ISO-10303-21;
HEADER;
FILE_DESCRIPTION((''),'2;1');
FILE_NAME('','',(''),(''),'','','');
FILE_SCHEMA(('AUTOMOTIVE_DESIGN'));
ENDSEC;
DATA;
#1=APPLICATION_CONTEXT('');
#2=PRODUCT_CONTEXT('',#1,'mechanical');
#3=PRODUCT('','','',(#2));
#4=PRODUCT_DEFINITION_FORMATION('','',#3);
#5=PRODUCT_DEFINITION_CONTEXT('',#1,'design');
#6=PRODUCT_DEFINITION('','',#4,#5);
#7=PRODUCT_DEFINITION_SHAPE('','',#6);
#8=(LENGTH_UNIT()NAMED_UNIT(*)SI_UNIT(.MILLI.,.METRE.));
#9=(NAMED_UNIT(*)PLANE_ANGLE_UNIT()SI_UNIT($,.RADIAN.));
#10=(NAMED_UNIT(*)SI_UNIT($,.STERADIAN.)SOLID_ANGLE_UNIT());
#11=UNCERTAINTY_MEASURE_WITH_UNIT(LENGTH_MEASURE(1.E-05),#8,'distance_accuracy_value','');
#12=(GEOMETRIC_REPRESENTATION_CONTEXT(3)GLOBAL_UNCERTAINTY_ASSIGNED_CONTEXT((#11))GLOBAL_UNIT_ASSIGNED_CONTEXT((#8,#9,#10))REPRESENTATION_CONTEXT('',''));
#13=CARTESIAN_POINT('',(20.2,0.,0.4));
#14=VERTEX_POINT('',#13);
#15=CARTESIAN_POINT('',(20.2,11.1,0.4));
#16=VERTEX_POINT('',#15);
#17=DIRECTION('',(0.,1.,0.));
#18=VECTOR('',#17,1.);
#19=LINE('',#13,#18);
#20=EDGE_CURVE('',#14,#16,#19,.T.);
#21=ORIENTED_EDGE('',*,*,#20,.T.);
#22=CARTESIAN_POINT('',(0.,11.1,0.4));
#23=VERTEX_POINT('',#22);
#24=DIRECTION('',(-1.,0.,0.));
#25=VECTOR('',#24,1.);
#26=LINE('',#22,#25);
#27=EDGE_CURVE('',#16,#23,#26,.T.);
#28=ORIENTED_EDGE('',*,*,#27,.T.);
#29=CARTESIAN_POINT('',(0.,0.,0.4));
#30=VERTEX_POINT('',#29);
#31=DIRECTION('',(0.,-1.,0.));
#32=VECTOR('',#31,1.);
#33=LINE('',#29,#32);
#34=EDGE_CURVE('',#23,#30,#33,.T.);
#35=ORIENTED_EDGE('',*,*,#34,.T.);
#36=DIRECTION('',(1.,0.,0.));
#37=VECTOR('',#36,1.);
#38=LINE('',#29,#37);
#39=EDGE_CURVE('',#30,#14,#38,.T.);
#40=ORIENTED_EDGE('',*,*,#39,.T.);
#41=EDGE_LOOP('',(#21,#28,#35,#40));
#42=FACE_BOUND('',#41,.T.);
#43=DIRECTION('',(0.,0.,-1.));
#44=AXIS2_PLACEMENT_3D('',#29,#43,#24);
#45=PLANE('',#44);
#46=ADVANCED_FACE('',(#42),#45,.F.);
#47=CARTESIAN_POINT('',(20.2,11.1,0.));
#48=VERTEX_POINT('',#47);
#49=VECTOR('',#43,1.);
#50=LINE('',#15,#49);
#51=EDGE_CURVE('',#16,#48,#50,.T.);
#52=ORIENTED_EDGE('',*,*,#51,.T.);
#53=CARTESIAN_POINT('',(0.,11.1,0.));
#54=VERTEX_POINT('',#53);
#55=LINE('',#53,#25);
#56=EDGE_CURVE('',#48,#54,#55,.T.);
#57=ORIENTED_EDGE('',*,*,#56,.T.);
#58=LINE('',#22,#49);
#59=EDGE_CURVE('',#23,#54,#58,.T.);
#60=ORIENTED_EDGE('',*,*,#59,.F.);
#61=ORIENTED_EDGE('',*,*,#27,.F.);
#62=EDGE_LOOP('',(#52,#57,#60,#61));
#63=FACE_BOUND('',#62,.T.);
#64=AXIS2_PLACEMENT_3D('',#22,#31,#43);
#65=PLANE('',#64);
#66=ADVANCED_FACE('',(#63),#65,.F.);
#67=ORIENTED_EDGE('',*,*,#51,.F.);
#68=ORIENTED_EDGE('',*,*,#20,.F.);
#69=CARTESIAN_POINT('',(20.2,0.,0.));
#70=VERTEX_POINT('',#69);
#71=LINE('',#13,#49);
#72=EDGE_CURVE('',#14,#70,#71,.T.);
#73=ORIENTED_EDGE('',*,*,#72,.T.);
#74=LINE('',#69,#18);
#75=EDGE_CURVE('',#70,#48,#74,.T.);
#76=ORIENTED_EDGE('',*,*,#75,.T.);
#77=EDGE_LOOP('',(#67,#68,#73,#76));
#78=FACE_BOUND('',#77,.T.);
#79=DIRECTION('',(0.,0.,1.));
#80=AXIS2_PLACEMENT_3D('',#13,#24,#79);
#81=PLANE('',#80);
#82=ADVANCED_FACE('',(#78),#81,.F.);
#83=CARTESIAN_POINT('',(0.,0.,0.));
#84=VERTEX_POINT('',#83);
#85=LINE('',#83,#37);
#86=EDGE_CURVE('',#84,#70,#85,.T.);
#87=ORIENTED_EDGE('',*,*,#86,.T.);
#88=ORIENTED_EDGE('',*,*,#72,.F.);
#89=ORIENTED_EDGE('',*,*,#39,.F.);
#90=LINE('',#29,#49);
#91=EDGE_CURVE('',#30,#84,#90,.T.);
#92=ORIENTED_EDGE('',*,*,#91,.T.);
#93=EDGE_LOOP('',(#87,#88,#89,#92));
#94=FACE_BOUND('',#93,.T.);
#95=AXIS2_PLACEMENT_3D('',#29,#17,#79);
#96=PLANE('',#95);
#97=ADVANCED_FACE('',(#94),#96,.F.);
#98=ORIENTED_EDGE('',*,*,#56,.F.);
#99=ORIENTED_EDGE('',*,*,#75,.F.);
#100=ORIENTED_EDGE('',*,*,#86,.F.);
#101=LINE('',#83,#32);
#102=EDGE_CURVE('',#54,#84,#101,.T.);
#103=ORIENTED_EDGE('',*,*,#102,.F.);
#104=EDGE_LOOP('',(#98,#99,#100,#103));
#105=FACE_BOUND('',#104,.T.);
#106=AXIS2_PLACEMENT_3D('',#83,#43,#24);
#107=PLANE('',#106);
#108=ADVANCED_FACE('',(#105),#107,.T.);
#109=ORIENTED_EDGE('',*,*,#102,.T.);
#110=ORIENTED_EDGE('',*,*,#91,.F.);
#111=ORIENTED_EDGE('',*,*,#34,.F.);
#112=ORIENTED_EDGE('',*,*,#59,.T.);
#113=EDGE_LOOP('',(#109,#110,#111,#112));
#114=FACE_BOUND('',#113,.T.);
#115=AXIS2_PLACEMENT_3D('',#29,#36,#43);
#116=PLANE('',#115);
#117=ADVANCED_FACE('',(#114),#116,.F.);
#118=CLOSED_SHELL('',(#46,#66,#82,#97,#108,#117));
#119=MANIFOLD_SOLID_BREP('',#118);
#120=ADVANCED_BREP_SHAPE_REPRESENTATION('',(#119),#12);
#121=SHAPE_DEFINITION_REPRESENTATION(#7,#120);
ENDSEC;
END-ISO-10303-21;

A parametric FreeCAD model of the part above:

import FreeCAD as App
import Part
import Sketcher

V = App.Vector
Q = App.Units.Quantity

doc = App.newDocument("Part")
body = doc.addObject("PartDesign::Body", "Body")

# Sketch on XY plane
sketch1 = body.newObject("Sketcher::SketchObject", "Sketch")
sketch1.AttachmentSupport = (doc.getObject("XY_Plane"), [""])
sketch1.MapMode = "FlatFace"
sketch1.addGeometry([
    Part.LineSegment(V(0, 11, 0), V(0, 0, 0)),
    Part.LineSegment(V(0, 0, 0), V(20, 0, 0)),
    Part.LineSegment(V(20, 0, 0), V(20, 11, 0)),
    Part.LineSegment(V(20, 11, 0), V(0, 11, 0)),
], False)
sketch1.addConstraint([
    Sketcher.Constraint("Coincident", 0, 2, 1, 1),
    Sketcher.Constraint("Coincident", 1, 2, 2, 1),
    Sketcher.Constraint("Coincident", 2, 2, 3, 1),
    Sketcher.Constraint("Coincident", 3, 2, 0, 1),
    Sketcher.Constraint("Vertical", 0),
    Sketcher.Constraint("Horizontal", 1),
    Sketcher.Constraint("Vertical", 2),
    Sketcher.Constraint("Horizontal", 3),
    Sketcher.Constraint("Coincident", 0, 2, -1, 1),
    Sketcher.Constraint("DistanceX", 1, 1, 1, 2, Q("20.2 mm")),
    Sketcher.Constraint("DistanceY", 0, 2, 0, 1, Q("11.1 mm")),
])
pad1 = body.newObject("PartDesign::Pad", "Pad")
pad1.Profile = sketch1
pad1.Length = 0.4

doc.recompute()
